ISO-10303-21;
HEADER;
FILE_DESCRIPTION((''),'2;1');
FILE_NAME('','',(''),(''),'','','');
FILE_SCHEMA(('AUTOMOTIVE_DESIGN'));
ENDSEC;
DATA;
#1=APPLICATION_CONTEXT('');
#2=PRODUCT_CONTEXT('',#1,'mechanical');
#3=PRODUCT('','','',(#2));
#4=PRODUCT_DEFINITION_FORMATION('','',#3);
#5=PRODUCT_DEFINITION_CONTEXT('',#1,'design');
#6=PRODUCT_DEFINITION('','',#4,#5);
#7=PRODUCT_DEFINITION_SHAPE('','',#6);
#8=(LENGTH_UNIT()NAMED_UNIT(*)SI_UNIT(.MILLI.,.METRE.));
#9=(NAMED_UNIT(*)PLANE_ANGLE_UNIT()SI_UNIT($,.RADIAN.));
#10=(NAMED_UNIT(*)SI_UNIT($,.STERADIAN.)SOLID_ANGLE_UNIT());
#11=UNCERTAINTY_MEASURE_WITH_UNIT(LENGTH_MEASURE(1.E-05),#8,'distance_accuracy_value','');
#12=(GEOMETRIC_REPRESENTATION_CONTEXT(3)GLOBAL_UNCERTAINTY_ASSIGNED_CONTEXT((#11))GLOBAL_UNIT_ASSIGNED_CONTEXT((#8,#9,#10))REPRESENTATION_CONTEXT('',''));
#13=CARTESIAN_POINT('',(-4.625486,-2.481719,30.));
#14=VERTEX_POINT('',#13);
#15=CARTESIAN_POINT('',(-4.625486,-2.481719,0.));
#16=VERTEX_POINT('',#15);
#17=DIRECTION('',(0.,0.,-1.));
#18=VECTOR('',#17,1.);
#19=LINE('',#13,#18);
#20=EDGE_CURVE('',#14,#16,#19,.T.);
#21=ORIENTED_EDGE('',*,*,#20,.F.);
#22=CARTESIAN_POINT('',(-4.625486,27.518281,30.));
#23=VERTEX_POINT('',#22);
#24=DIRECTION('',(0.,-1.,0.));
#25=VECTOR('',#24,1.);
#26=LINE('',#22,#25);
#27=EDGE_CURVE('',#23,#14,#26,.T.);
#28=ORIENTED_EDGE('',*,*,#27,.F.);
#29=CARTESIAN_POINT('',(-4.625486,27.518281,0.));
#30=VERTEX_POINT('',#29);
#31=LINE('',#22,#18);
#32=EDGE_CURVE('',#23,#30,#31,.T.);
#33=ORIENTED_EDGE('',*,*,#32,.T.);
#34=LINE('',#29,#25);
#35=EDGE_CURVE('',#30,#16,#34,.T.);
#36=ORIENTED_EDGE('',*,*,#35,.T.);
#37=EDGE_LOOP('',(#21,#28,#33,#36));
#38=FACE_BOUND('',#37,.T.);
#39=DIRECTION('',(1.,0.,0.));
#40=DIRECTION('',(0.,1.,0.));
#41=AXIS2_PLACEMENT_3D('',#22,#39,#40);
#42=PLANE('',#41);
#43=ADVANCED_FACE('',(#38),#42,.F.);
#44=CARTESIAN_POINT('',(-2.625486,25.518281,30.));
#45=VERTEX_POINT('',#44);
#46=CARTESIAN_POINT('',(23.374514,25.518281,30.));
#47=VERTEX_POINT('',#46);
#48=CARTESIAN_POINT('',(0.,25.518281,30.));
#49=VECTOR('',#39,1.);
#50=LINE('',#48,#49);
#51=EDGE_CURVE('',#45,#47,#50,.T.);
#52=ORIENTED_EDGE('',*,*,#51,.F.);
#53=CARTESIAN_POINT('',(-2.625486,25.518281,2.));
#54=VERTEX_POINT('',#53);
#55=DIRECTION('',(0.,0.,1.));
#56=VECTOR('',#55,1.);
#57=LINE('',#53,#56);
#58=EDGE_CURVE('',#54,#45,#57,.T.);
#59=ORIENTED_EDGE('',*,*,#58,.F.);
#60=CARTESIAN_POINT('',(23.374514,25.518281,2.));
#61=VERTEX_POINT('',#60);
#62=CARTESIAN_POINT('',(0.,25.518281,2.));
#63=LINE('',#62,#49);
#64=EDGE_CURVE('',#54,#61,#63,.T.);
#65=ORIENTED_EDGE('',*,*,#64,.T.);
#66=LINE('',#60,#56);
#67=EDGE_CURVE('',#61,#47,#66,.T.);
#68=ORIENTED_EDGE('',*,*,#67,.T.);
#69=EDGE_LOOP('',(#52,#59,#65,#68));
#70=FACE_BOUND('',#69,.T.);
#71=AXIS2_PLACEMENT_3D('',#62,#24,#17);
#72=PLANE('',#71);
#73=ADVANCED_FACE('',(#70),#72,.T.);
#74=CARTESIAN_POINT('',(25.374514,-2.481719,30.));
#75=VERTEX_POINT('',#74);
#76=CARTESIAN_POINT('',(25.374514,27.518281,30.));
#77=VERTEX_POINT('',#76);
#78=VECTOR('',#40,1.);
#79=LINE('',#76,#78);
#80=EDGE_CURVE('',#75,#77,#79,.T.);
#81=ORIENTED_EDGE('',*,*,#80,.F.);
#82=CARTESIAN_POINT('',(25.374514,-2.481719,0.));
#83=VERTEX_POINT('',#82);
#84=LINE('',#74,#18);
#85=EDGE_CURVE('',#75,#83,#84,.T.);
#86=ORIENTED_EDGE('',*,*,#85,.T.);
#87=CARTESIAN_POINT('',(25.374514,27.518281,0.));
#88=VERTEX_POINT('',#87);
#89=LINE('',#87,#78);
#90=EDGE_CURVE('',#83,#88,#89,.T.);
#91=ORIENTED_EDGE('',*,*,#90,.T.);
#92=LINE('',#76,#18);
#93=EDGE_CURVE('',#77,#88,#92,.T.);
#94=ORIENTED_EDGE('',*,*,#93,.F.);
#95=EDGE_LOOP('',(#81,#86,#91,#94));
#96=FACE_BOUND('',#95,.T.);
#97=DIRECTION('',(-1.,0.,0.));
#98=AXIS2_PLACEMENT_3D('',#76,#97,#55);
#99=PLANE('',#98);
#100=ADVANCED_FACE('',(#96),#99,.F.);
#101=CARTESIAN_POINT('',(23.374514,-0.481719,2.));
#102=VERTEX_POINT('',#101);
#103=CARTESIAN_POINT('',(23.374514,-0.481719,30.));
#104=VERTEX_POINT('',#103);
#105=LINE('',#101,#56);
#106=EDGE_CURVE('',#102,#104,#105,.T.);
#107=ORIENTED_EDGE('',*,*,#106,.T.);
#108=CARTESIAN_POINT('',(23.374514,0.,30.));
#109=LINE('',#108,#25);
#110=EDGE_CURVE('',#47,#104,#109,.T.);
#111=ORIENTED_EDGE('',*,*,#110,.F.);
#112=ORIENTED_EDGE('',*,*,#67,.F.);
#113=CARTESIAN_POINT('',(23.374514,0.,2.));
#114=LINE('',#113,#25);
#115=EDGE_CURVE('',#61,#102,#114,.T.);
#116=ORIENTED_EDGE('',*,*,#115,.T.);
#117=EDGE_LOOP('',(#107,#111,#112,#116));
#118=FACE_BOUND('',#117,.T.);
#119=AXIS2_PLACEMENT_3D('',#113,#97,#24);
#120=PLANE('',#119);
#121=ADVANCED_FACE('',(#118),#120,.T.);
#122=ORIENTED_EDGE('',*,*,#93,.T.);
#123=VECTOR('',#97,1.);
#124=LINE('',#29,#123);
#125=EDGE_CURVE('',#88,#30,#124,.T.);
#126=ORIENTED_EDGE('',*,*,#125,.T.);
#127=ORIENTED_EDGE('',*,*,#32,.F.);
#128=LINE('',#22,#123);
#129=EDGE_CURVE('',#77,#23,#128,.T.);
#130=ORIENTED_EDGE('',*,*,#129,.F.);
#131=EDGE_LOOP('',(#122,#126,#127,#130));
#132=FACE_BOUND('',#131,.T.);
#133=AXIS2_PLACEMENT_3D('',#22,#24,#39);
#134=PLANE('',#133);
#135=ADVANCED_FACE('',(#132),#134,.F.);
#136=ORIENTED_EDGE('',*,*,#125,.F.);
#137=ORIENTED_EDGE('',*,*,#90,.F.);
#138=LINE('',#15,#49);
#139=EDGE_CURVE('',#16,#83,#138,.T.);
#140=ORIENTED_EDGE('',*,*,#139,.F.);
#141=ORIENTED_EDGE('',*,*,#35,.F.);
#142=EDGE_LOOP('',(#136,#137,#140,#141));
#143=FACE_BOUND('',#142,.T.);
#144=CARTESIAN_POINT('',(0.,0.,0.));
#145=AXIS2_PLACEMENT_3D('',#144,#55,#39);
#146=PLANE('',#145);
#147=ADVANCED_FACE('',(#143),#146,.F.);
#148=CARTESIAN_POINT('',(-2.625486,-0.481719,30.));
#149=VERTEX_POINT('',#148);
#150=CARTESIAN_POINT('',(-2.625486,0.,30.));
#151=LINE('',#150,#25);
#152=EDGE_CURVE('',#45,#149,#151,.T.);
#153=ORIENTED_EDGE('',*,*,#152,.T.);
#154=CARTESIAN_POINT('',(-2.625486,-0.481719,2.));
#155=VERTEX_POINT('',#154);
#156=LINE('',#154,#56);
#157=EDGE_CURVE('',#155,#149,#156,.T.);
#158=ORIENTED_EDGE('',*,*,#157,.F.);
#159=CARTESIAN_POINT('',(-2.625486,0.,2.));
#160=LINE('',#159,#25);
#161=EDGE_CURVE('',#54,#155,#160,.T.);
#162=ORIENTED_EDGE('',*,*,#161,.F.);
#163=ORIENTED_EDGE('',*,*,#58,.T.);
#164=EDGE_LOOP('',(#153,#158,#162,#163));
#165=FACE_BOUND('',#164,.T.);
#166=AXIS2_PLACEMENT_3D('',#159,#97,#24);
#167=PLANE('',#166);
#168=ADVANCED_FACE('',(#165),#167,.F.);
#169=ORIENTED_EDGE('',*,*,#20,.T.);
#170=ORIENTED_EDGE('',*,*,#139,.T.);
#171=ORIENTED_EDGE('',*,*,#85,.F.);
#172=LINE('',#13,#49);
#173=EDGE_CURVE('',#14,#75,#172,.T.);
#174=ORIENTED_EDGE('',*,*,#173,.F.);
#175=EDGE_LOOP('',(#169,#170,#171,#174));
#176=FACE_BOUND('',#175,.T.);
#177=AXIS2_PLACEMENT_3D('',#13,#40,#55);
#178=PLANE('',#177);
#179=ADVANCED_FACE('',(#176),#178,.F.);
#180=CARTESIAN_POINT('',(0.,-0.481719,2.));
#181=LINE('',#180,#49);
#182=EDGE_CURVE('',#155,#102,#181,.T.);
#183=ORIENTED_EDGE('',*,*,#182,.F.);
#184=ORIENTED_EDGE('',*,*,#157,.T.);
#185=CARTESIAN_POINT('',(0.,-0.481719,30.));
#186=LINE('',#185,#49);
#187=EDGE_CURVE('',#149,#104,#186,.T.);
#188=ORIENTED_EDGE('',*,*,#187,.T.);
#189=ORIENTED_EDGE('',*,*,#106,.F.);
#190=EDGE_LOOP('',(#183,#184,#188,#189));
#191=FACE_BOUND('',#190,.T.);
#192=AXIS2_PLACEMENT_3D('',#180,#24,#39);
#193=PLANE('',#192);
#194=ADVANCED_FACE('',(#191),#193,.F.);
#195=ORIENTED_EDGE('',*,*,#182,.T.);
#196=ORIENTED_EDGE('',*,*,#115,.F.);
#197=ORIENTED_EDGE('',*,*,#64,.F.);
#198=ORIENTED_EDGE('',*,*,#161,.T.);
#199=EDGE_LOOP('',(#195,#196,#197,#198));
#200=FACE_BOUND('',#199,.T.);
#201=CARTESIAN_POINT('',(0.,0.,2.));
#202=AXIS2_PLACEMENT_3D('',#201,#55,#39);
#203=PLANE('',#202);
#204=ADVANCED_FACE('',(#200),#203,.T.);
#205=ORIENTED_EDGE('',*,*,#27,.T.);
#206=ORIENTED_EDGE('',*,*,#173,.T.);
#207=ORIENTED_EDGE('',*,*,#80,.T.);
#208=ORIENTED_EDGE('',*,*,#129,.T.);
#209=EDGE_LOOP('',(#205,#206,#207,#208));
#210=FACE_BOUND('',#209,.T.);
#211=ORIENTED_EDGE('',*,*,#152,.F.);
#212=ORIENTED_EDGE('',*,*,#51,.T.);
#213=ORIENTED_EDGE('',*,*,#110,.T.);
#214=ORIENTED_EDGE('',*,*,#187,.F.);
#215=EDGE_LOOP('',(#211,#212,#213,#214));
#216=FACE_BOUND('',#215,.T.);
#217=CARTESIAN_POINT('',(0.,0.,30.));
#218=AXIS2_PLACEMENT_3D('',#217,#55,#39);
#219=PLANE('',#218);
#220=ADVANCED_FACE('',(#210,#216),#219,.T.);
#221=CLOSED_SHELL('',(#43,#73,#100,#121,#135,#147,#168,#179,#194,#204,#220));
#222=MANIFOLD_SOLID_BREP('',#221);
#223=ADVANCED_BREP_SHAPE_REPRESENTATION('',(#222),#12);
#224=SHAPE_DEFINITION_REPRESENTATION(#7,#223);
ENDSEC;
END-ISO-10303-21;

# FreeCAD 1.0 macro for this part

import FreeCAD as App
import Part
import Sketcher

doc = App.newDocument("Part")
params = doc.addObject("Spreadsheet::Sheet", "Params")
for row, (alias, value) in enumerate([
    ("sketch1_width", "30 mm"),
    ("pad1_length", "30 mm"),
    ("sketch2_width", "26 mm"),
    ("pocket1_length", "28 mm"),
], start=1):
    params.set(f"A{row}", alias)
    params.set(f"B{row}", "=" + value)
    params.setAlias(f"B{row}", alias)

body = doc.addObject("PartDesign::Body", "Body")

# Sketch on XY plane
sketch1 = body.newObject("Sketcher::SketchObject", "Sketch")
sketch1.AttachmentSupport = (doc.getObject("XY_Plane"), [""])
sketch1.MapMode = "FlatFace"
sketch1.addGeometry(Part.LineSegment(App.Vector(-5, 28, 0), App.Vector(-5, -2, 0)), False)
sketch1.addGeometry(Part.LineSegment(App.Vector(-5, -2, 0), App.Vector(25, -2, 0)), False)
sketch1.addGeometry(Part.LineSegment(App.Vector(25, -2, 0), App.Vector(25, 28, 0)), False)
sketch1.addGeometry(Part.LineSegment(App.Vector(25, 28, 0), App.Vector(-5, 28, 0)), False)
sketch1.addConstraint(Sketcher.Constraint("Coincident", 0, 2, 1, 1))
sketch1.addConstraint(Sketcher.Constraint("Coincident", 1, 2, 2, 1))
sketch1.addConstraint(Sketcher.Constraint("Coincident", 2, 2, 3, 1))
sketch1.addConstraint(Sketcher.Constraint("Coincident", 3, 2, 0, 1))
sketch1.addConstraint(Sketcher.Constraint("Vertical", 0))
sketch1.addConstraint(Sketcher.Constraint("Horizontal", 1))
sketch1.addConstraint(Sketcher.Constraint("Vertical", 2))
sketch1.addConstraint(Sketcher.Constraint("Horizontal", 3))
sketch1.addConstraint(Sketcher.Constraint("Equal", 3, 0))
sketch1.addConstraint(Sketcher.Constraint("DistanceX", 1, 1, 1, 2, 30.0))
sketch1.addConstraint(Sketcher.Constraint("DistanceY", 0, 2, -1, 1, 2.481719))
sketch1.addConstraint(Sketcher.Constraint("DistanceX", 0, 2, -1, 1, 4.625486))
sketch1.setExpression("Constraints[9]", "Params.sketch1_width")
pad1 = body.newObject("PartDesign::Pad", "Pad")
pad1.Profile = sketch1
pad1.setExpression("Length", "Params.pad1_length")

# Sketch on XY plane
sketch2 = body.newObject("Sketcher::SketchObject", "Sketch001")
sketch2.AttachmentSupport = (doc.getObject("XY_Plane"), [""])
sketch2.MapMode = "FlatFace"
sketch2.AttachmentOffset = App.Placement(App.Vector(0, 0, 30), App.Rotation())
sketch2.addGeometry(Part.LineSegment(App.Vector(-3, 26, 0), App.Vector(-3, 0, 0)), False)
sketch2.addGeometry(Part.LineSegment(App.Vector(-3, 0, 0), App.Vector(23, 0, 0)), False)
sketch2.addGeometry(Part.LineSegment(App.Vector(23, 0, 0), App.Vector(23, 26, 0)), False)
sketch2.addGeometry(Part.LineSegment(App.Vector(23, 26, 0), App.Vector(-3, 26, 0)), False)
sketch2.addConstraint(Sketcher.Constraint("Coincident", 0, 2, 1, 1))
sketch2.addConstraint(Sketcher.Constraint("Coincident", 1, 2, 2, 1))
sketch2.addConstraint(Sketcher.Constraint("Coincident", 2, 2, 3, 1))
sketch2.addConstraint(Sketcher.Constraint("Coincident", 3, 2, 0, 1))
sketch2.addConstraint(Sketcher.Constraint("Vertical", 0))
sketch2.addConstraint(Sketcher.Constraint("Horizontal", 1))
sketch2.addConstraint(Sketcher.Constraint("Vertical", 2))
sketch2.addConstraint(Sketcher.Constraint("Horizontal", 3))
sketch2.addConstraint(Sketcher.Constraint("Equal", 3, 0))
sketch2.addConstraint(Sketcher.Constraint("DistanceX", 1, 1, 1, 2, 26.0))
sketch2.addConstraint(Sketcher.Constraint("DistanceY", 0, 2, -1, 1, 0.481719))
sketch2.addConstraint(Sketcher.Constraint("DistanceX", 0, 2, -1, 1, 2.625486))
sketch2.setExpression("Constraints[9]", "Params.sketch2_width")
pocket1 = body.newObject("PartDesign::Pocket", "Pocket")
pocket1.Profile = sketch2
pocket1.setExpression("Length", "Params.pocket1_length")

doc.recompute()
